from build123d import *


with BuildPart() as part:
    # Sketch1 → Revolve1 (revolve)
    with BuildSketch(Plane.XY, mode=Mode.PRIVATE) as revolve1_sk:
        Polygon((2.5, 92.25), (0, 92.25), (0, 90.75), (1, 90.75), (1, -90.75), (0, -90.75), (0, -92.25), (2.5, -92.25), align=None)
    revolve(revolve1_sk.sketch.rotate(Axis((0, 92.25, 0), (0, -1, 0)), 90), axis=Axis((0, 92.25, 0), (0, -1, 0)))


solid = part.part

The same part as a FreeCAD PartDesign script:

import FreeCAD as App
import Part
import Sketcher

V = App.Vector


def add_polygon(sketch, points):
    """Adds a closed chain of lines whose ends are joined by coincident constraints."""
    first, n = sketch.GeometryCount, len(points)
    for a, b in zip(points, points[1:] + points[:1]):
        sketch.addGeometry(Part.LineSegment(App.Vector(*a, 0), App.Vector(*b, 0)), False)
    for i in range(n):
        sketch.addConstraint(Sketcher.Constraint("Coincident", first + i, 2, first + (i + 1) % n, 1))

doc = App.newDocument("Part")
body = doc.addObject("PartDesign::Body", "Body")

sketch1 = body.newObject("Sketcher::SketchObject", "Sketch")
sketch1.AttachmentSupport = (doc.getObject("XY_Plane"), [""])
sketch1.MapMode = "FlatFace"
add_polygon(sketch1, [(2.5, 92.2), (0, 92.2), (0, 90.8), (1, 90.8), (1, -90.8), (0, -90.8), (0, -92.2), (2.5, -92.2)])
sketch1.addConstraint([
    Sketcher.Constraint("Horizontal", 0),
    Sketcher.Constraint("Vertical", 1),
    Sketcher.Constraint("Horizontal", 2),
    Sketcher.Constraint("Vertical", 3),
    Sketcher.Constraint("Horizontal", 4),
    Sketcher.Constraint("Vertical", 5),
    Sketcher.Constraint("Horizontal", 6),
    Sketcher.Constraint("Vertical", 7),
    Sketcher.Constraint("Symmetric", 1, 2, 4, 2, -1, 1),
    Sketcher.Constraint("Symmetric", 0, 2, 5, 2, -1),
    Sketcher.Constraint("DistanceX", 2, 1, 2, 2, 1.0),
    Sketcher.Constraint("DistanceX", 0, 2, 0, 1, 2.5),
    Sketcher.Constraint("DistanceY", 1, 2, 1, 1, 1.5),
    Sketcher.Constraint("DistanceY", 3, 2, 3, 1, 181.5),
])
revolution = body.newObject("PartDesign::Revolution", "Revolution")
revolution.Profile = sketch1
revolution.ReferenceAxis = (sketch1, ["V_Axis"])
revolution.Angle = 360

doc.recompute()
